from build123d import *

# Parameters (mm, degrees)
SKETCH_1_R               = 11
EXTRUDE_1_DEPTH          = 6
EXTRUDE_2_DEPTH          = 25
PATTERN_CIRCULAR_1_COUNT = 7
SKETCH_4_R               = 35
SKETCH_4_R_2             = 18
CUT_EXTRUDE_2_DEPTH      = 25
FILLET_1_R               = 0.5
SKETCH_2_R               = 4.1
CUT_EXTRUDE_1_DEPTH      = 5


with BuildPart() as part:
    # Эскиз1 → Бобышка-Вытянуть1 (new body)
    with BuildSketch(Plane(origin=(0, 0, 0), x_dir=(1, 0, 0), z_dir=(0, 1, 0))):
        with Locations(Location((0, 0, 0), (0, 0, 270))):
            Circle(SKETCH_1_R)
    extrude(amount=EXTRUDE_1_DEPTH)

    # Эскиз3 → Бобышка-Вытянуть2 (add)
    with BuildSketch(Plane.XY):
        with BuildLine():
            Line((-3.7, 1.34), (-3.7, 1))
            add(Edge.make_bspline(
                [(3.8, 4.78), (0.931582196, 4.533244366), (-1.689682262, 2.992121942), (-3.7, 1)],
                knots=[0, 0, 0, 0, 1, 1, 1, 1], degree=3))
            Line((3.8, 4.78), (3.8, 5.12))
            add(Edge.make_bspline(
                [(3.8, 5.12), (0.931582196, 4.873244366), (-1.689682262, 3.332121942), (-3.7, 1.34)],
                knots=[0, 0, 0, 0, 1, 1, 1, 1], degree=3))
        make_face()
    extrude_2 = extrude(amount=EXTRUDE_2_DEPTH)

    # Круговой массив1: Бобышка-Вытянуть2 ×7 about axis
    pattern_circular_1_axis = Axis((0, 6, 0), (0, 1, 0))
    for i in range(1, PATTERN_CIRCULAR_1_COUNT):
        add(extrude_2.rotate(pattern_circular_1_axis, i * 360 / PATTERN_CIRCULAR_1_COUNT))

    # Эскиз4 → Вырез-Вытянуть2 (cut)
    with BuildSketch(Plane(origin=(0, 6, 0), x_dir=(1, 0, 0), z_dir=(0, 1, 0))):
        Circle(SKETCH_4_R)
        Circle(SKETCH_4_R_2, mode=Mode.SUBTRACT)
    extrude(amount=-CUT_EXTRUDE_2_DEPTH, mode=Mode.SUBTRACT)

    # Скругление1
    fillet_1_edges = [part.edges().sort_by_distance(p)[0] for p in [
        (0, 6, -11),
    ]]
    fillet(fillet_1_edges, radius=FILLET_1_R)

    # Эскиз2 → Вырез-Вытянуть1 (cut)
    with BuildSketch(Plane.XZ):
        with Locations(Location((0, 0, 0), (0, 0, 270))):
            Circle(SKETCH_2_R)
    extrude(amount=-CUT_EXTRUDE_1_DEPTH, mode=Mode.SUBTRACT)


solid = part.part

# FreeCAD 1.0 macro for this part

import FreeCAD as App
import Part
import Sketcher
from FreeCAD import Vector


def edges_at(feature, points):
    """Names of the edges that pass closest to the given points."""
    edges = feature.Shape.Edges
    near = lambda p: min(range(len(edges)), key=lambda i: edges[i].distToShape(Part.Vertex(*p))[0])
    return sorted({f"Edge{near(p) + 1}" for p in points})

doc = App.newDocument("Part")
body = doc.addObject("PartDesign::Body", "Body")

# Sketch on XZ plane
sketch1 = body.newObject("Sketcher::SketchObject", "Sketch")
sketch1.AttachmentSupport = (doc.getObject("XZ_Plane"), [""])
sketch1.MapMode = "FlatFace"
sketch1.addGeometry(Part.Circle(Vector(0, 0, 0), Vector(0, 0, 1), 11), False)
sketch1.addConstraint([
    Sketcher.Constraint("Coincident", 0, 3, -1, 1),
    Sketcher.Constraint("Diameter", 0, 22.0),
])
pad1 = body.newObject("PartDesign::Pad", "Pad")
pad1.Profile = sketch1
pad1.Length = 6
pad1.Reversed = True

# Sketch on XY plane
sketch2 = body.newObject("Sketcher::SketchObject", "Sketch001")
sketch2.AttachmentSupport = (doc.getObject("XY_Plane"), [""])
sketch2.MapMode = "FlatFace"
sketch2.addGeometry([
    Part.LineSegment(Vector(-3.7, 1.34, 0), Vector(-3.7, 1, 0)),
    Part.BSplineCurve([Vector(3.8, 4.78, 0), Vector(0.931582, 4.533244, 0), Vector(-1.689682, 2.992122, 0), Vector(-3.7, 1, 0)], [4, 4], [0, 1], False, 3, [1, 1, 1, 1], False),
    Part.LineSegment(Vector(3.8, 4.78, 0), Vector(3.8, 5.12, 0)),
    Part.BSplineCurve([Vector(3.8, 5.12, 0), Vector(0.931582, 4.873244, 0), Vector(-1.689682, 3.332122, 0), Vector(-3.7, 1.34, 0)], [4, 4], [0, 1], False, 3, [1, 1, 1, 1], False),
], False)
sketch2.addConstraint([
    Sketcher.Constraint("Block", 1),
    Sketcher.Constraint("Block", 3),
    Sketcher.Constraint("Coincident", 0, 2, 1, 2),
    Sketcher.Constraint("Coincident", 1, 1, 2, 1),
    Sketcher.Constraint("Coincident", 2, 2, 3, 1),
    Sketcher.Constraint("Coincident", 3, 2, 0, 1),
])
pad2 = body.newObject("PartDesign::Pad", "Pad001")
pad2.Profile = sketch2
pad2.Length = 25
doc.recompute()

polarpattern = body.newObject("PartDesign::PolarPattern", "PolarPattern")
polarpattern.Originals = [pad2]
polarpattern.Axis = (doc.getObject("Y_Axis"), [""])
polarpattern.Angle = 360
polarpattern.Occurrences = 7
body.Tip = polarpattern

# Sketch on XZ plane
sketch3 = body.newObject("Sketcher::SketchObject", "Sketch002")
sketch3.AttachmentSupport = (doc.getObject("XZ_Plane"), [""])
sketch3.MapMode = "FlatFace"
sketch3.AttachmentOffset = App.Placement(Vector(0, 0, -6), App.Rotation())
sketch3.addGeometry([
    Part.Circle(Vector(0, 0, 0), Vector(0, 0, 1), 35),
    Part.Circle(Vector(0, 0, 0), Vector(0, 0, 1), 18),
], False)
sketch3.addConstraint([
    Sketcher.Constraint("Coincident", 0, 3, -1, 1),
    Sketcher.Constraint("Coincident", 1, 3, -1, 1),
    Sketcher.Constraint("Diameter", 0, 70.0),
    Sketcher.Constraint("Diameter", 1, 36.0),
])
pocket1 = body.newObject("PartDesign::Pocket", "Pocket")
pocket1.Profile = sketch3
pocket1.Length = 25
pocket1.Reversed = True
doc.recompute()

fillet = body.newObject("PartDesign::Fillet", "Fillet")
fillet.Base = (pocket1, edges_at(pocket1, [(0, 6, -11)]))
fillet.Radius = 0.5

# Sketch on XZ plane
sketch4 = body.newObject("Sketcher::SketchObject", "Sketch003")
sketch4.AttachmentSupport = (doc.getObject("XZ_Plane"), [""])
sketch4.MapMode = "FlatFace"
sketch4.addGeometry(Part.Circle(Vector(0, 0, 0), Vector(0, 0, 1), 4.1), False)
sketch4.addConstraint([
    Sketcher.Constraint("Coincident", 0, 3, -1, 1),
    Sketcher.Constraint("Diameter", 0, 8.2),
])
pocket2 = body.newObject("PartDesign::Pocket", "Pocket001")
pocket2.Profile = sketch4
pocket2.Length = 5

doc.recompute()
